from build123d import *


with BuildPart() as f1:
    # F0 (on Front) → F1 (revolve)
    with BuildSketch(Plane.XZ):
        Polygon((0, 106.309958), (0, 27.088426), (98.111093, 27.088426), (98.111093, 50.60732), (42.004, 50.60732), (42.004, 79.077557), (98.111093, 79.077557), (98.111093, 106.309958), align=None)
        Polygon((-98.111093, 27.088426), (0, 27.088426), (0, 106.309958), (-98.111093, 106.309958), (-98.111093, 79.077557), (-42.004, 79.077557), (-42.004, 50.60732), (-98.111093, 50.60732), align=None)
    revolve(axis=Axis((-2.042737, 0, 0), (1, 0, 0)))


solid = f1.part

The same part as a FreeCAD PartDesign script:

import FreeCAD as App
import Part
import Sketcher

V = App.Vector


def add_polygon(sketch, points):
    """Adds a closed chain of lines whose ends are joined by coincident constraints."""
    first, n = sketch.GeometryCount, len(points)
    for a, b in zip(points, points[1:] + points[:1]):
        sketch.addGeometry(Part.LineSegment(App.Vector(*a, 0), App.Vector(*b, 0)), False)
    for i in range(n):
        sketch.addConstraint(Sketcher.Constraint("Coincident", first + i, 2, first + (i + 1) % n, 1))

doc = App.newDocument("Part")
params = doc.addObject("Spreadsheet::Sheet", "Params")
for row, (alias, value) in enumerate([
    ("revolution_angle", "360 deg"),
], start=1):
    params.set(f"A{row}", alias)
    params.set(f"B{row}", "=" + value)
    params.setAlias(f"B{row}", alias)

body = doc.addObject("PartDesign::Body", "Body")

sketch1 = doc.addObject("Sketcher::SketchObject", "Sketch")
body.addObject(sketch1)
sketch1.AttachmentSupport = (doc.XZ_Plane, [""])
sketch1.MapMode = "FlatFace"
add_polygon(sketch1, [(98.111093, 27.088426), (98.111093, 50.60732), (42.004, 50.60732), (42.004, 79.077557), (98.111093, 79.077557), (98.111093, 106.309958), (-98.111093, 106.309958), (-98.111093, 79.077557), (-42.004, 79.077557), (-42.004, 50.60732), (-98.111093, 50.60732), (-98.111093, 27.088426)])
sketch1.addConstraint(Sketcher.Constraint("Vertical", 0))
sketch1.addConstraint(Sketcher.Constraint("Horizontal", 1))
sketch1.addConstraint(Sketcher.Constraint("Vertical", 2))
sketch1.addConstraint(Sketcher.Constraint("Horizontal", 3))
sketch1.addConstraint(Sketcher.Constraint("Vertical", 4))
sketch1.addConstraint(Sketcher.Constraint("Horizontal", 5))
sketch1.addConstraint(Sketcher.Constraint("Vertical", 6))
sketch1.addConstraint(Sketcher.Constraint("Horizontal", 7))
sketch1.addConstraint(Sketcher.Constraint("Vertical", 8))
sketch1.addConstraint(Sketcher.Constraint("Horizontal", 9))
sketch1.addConstraint(Sketcher.Constraint("Vertical", 10))
sketch1.addConstraint(Sketcher.Constraint("Horizontal", 11))
sketch1.addConstraint(Sketcher.Constraint("Symmetric", 3, 2, 6, 2, -2))
sketch1.addConstraint(Sketcher.Constraint("Symmetric", 1, 2, 8, 2, -2))
sketch1.addConstraint(Sketcher.Constraint("Vertical", 0, 2, 3, 2))
sketch1.addConstraint(Sketcher.Constraint("Vertical", 6, 2, 9, 2))
sketch1.addConstraint(Sketcher.Constraint("DistanceY", 4, 1, 4, 2, 27.232401))
sketch1.addConstraint(Sketcher.Constraint("DistanceX", -1, 1, 1, 2, 42.004))
sketch1.addConstraint(Sketcher.Constraint("DistanceX", 1, 2, 1, 1, 56.107093))
sketch1.addConstraint(Sketcher.Constraint("DistanceY", 0, 1, 0, 2, 23.518894))
sketch1.addConstraint(Sketcher.Constraint("DistanceY", 2, 1, 2, 2, 28.470237))
sketch1.addConstraint(Sketcher.Constraint("DistanceY", -1, 1, 0, 2, 50.60732))
revolution = doc.addObject("PartDesign::Revolution", "Revolution")
body.addObject(revolution)
revolution.Profile = sketch1
revolution.ReferenceAxis = (sketch1, ["H_Axis"])
revolution.setExpression("Angle", "Params.revolution_angle")

doc.recompute()
